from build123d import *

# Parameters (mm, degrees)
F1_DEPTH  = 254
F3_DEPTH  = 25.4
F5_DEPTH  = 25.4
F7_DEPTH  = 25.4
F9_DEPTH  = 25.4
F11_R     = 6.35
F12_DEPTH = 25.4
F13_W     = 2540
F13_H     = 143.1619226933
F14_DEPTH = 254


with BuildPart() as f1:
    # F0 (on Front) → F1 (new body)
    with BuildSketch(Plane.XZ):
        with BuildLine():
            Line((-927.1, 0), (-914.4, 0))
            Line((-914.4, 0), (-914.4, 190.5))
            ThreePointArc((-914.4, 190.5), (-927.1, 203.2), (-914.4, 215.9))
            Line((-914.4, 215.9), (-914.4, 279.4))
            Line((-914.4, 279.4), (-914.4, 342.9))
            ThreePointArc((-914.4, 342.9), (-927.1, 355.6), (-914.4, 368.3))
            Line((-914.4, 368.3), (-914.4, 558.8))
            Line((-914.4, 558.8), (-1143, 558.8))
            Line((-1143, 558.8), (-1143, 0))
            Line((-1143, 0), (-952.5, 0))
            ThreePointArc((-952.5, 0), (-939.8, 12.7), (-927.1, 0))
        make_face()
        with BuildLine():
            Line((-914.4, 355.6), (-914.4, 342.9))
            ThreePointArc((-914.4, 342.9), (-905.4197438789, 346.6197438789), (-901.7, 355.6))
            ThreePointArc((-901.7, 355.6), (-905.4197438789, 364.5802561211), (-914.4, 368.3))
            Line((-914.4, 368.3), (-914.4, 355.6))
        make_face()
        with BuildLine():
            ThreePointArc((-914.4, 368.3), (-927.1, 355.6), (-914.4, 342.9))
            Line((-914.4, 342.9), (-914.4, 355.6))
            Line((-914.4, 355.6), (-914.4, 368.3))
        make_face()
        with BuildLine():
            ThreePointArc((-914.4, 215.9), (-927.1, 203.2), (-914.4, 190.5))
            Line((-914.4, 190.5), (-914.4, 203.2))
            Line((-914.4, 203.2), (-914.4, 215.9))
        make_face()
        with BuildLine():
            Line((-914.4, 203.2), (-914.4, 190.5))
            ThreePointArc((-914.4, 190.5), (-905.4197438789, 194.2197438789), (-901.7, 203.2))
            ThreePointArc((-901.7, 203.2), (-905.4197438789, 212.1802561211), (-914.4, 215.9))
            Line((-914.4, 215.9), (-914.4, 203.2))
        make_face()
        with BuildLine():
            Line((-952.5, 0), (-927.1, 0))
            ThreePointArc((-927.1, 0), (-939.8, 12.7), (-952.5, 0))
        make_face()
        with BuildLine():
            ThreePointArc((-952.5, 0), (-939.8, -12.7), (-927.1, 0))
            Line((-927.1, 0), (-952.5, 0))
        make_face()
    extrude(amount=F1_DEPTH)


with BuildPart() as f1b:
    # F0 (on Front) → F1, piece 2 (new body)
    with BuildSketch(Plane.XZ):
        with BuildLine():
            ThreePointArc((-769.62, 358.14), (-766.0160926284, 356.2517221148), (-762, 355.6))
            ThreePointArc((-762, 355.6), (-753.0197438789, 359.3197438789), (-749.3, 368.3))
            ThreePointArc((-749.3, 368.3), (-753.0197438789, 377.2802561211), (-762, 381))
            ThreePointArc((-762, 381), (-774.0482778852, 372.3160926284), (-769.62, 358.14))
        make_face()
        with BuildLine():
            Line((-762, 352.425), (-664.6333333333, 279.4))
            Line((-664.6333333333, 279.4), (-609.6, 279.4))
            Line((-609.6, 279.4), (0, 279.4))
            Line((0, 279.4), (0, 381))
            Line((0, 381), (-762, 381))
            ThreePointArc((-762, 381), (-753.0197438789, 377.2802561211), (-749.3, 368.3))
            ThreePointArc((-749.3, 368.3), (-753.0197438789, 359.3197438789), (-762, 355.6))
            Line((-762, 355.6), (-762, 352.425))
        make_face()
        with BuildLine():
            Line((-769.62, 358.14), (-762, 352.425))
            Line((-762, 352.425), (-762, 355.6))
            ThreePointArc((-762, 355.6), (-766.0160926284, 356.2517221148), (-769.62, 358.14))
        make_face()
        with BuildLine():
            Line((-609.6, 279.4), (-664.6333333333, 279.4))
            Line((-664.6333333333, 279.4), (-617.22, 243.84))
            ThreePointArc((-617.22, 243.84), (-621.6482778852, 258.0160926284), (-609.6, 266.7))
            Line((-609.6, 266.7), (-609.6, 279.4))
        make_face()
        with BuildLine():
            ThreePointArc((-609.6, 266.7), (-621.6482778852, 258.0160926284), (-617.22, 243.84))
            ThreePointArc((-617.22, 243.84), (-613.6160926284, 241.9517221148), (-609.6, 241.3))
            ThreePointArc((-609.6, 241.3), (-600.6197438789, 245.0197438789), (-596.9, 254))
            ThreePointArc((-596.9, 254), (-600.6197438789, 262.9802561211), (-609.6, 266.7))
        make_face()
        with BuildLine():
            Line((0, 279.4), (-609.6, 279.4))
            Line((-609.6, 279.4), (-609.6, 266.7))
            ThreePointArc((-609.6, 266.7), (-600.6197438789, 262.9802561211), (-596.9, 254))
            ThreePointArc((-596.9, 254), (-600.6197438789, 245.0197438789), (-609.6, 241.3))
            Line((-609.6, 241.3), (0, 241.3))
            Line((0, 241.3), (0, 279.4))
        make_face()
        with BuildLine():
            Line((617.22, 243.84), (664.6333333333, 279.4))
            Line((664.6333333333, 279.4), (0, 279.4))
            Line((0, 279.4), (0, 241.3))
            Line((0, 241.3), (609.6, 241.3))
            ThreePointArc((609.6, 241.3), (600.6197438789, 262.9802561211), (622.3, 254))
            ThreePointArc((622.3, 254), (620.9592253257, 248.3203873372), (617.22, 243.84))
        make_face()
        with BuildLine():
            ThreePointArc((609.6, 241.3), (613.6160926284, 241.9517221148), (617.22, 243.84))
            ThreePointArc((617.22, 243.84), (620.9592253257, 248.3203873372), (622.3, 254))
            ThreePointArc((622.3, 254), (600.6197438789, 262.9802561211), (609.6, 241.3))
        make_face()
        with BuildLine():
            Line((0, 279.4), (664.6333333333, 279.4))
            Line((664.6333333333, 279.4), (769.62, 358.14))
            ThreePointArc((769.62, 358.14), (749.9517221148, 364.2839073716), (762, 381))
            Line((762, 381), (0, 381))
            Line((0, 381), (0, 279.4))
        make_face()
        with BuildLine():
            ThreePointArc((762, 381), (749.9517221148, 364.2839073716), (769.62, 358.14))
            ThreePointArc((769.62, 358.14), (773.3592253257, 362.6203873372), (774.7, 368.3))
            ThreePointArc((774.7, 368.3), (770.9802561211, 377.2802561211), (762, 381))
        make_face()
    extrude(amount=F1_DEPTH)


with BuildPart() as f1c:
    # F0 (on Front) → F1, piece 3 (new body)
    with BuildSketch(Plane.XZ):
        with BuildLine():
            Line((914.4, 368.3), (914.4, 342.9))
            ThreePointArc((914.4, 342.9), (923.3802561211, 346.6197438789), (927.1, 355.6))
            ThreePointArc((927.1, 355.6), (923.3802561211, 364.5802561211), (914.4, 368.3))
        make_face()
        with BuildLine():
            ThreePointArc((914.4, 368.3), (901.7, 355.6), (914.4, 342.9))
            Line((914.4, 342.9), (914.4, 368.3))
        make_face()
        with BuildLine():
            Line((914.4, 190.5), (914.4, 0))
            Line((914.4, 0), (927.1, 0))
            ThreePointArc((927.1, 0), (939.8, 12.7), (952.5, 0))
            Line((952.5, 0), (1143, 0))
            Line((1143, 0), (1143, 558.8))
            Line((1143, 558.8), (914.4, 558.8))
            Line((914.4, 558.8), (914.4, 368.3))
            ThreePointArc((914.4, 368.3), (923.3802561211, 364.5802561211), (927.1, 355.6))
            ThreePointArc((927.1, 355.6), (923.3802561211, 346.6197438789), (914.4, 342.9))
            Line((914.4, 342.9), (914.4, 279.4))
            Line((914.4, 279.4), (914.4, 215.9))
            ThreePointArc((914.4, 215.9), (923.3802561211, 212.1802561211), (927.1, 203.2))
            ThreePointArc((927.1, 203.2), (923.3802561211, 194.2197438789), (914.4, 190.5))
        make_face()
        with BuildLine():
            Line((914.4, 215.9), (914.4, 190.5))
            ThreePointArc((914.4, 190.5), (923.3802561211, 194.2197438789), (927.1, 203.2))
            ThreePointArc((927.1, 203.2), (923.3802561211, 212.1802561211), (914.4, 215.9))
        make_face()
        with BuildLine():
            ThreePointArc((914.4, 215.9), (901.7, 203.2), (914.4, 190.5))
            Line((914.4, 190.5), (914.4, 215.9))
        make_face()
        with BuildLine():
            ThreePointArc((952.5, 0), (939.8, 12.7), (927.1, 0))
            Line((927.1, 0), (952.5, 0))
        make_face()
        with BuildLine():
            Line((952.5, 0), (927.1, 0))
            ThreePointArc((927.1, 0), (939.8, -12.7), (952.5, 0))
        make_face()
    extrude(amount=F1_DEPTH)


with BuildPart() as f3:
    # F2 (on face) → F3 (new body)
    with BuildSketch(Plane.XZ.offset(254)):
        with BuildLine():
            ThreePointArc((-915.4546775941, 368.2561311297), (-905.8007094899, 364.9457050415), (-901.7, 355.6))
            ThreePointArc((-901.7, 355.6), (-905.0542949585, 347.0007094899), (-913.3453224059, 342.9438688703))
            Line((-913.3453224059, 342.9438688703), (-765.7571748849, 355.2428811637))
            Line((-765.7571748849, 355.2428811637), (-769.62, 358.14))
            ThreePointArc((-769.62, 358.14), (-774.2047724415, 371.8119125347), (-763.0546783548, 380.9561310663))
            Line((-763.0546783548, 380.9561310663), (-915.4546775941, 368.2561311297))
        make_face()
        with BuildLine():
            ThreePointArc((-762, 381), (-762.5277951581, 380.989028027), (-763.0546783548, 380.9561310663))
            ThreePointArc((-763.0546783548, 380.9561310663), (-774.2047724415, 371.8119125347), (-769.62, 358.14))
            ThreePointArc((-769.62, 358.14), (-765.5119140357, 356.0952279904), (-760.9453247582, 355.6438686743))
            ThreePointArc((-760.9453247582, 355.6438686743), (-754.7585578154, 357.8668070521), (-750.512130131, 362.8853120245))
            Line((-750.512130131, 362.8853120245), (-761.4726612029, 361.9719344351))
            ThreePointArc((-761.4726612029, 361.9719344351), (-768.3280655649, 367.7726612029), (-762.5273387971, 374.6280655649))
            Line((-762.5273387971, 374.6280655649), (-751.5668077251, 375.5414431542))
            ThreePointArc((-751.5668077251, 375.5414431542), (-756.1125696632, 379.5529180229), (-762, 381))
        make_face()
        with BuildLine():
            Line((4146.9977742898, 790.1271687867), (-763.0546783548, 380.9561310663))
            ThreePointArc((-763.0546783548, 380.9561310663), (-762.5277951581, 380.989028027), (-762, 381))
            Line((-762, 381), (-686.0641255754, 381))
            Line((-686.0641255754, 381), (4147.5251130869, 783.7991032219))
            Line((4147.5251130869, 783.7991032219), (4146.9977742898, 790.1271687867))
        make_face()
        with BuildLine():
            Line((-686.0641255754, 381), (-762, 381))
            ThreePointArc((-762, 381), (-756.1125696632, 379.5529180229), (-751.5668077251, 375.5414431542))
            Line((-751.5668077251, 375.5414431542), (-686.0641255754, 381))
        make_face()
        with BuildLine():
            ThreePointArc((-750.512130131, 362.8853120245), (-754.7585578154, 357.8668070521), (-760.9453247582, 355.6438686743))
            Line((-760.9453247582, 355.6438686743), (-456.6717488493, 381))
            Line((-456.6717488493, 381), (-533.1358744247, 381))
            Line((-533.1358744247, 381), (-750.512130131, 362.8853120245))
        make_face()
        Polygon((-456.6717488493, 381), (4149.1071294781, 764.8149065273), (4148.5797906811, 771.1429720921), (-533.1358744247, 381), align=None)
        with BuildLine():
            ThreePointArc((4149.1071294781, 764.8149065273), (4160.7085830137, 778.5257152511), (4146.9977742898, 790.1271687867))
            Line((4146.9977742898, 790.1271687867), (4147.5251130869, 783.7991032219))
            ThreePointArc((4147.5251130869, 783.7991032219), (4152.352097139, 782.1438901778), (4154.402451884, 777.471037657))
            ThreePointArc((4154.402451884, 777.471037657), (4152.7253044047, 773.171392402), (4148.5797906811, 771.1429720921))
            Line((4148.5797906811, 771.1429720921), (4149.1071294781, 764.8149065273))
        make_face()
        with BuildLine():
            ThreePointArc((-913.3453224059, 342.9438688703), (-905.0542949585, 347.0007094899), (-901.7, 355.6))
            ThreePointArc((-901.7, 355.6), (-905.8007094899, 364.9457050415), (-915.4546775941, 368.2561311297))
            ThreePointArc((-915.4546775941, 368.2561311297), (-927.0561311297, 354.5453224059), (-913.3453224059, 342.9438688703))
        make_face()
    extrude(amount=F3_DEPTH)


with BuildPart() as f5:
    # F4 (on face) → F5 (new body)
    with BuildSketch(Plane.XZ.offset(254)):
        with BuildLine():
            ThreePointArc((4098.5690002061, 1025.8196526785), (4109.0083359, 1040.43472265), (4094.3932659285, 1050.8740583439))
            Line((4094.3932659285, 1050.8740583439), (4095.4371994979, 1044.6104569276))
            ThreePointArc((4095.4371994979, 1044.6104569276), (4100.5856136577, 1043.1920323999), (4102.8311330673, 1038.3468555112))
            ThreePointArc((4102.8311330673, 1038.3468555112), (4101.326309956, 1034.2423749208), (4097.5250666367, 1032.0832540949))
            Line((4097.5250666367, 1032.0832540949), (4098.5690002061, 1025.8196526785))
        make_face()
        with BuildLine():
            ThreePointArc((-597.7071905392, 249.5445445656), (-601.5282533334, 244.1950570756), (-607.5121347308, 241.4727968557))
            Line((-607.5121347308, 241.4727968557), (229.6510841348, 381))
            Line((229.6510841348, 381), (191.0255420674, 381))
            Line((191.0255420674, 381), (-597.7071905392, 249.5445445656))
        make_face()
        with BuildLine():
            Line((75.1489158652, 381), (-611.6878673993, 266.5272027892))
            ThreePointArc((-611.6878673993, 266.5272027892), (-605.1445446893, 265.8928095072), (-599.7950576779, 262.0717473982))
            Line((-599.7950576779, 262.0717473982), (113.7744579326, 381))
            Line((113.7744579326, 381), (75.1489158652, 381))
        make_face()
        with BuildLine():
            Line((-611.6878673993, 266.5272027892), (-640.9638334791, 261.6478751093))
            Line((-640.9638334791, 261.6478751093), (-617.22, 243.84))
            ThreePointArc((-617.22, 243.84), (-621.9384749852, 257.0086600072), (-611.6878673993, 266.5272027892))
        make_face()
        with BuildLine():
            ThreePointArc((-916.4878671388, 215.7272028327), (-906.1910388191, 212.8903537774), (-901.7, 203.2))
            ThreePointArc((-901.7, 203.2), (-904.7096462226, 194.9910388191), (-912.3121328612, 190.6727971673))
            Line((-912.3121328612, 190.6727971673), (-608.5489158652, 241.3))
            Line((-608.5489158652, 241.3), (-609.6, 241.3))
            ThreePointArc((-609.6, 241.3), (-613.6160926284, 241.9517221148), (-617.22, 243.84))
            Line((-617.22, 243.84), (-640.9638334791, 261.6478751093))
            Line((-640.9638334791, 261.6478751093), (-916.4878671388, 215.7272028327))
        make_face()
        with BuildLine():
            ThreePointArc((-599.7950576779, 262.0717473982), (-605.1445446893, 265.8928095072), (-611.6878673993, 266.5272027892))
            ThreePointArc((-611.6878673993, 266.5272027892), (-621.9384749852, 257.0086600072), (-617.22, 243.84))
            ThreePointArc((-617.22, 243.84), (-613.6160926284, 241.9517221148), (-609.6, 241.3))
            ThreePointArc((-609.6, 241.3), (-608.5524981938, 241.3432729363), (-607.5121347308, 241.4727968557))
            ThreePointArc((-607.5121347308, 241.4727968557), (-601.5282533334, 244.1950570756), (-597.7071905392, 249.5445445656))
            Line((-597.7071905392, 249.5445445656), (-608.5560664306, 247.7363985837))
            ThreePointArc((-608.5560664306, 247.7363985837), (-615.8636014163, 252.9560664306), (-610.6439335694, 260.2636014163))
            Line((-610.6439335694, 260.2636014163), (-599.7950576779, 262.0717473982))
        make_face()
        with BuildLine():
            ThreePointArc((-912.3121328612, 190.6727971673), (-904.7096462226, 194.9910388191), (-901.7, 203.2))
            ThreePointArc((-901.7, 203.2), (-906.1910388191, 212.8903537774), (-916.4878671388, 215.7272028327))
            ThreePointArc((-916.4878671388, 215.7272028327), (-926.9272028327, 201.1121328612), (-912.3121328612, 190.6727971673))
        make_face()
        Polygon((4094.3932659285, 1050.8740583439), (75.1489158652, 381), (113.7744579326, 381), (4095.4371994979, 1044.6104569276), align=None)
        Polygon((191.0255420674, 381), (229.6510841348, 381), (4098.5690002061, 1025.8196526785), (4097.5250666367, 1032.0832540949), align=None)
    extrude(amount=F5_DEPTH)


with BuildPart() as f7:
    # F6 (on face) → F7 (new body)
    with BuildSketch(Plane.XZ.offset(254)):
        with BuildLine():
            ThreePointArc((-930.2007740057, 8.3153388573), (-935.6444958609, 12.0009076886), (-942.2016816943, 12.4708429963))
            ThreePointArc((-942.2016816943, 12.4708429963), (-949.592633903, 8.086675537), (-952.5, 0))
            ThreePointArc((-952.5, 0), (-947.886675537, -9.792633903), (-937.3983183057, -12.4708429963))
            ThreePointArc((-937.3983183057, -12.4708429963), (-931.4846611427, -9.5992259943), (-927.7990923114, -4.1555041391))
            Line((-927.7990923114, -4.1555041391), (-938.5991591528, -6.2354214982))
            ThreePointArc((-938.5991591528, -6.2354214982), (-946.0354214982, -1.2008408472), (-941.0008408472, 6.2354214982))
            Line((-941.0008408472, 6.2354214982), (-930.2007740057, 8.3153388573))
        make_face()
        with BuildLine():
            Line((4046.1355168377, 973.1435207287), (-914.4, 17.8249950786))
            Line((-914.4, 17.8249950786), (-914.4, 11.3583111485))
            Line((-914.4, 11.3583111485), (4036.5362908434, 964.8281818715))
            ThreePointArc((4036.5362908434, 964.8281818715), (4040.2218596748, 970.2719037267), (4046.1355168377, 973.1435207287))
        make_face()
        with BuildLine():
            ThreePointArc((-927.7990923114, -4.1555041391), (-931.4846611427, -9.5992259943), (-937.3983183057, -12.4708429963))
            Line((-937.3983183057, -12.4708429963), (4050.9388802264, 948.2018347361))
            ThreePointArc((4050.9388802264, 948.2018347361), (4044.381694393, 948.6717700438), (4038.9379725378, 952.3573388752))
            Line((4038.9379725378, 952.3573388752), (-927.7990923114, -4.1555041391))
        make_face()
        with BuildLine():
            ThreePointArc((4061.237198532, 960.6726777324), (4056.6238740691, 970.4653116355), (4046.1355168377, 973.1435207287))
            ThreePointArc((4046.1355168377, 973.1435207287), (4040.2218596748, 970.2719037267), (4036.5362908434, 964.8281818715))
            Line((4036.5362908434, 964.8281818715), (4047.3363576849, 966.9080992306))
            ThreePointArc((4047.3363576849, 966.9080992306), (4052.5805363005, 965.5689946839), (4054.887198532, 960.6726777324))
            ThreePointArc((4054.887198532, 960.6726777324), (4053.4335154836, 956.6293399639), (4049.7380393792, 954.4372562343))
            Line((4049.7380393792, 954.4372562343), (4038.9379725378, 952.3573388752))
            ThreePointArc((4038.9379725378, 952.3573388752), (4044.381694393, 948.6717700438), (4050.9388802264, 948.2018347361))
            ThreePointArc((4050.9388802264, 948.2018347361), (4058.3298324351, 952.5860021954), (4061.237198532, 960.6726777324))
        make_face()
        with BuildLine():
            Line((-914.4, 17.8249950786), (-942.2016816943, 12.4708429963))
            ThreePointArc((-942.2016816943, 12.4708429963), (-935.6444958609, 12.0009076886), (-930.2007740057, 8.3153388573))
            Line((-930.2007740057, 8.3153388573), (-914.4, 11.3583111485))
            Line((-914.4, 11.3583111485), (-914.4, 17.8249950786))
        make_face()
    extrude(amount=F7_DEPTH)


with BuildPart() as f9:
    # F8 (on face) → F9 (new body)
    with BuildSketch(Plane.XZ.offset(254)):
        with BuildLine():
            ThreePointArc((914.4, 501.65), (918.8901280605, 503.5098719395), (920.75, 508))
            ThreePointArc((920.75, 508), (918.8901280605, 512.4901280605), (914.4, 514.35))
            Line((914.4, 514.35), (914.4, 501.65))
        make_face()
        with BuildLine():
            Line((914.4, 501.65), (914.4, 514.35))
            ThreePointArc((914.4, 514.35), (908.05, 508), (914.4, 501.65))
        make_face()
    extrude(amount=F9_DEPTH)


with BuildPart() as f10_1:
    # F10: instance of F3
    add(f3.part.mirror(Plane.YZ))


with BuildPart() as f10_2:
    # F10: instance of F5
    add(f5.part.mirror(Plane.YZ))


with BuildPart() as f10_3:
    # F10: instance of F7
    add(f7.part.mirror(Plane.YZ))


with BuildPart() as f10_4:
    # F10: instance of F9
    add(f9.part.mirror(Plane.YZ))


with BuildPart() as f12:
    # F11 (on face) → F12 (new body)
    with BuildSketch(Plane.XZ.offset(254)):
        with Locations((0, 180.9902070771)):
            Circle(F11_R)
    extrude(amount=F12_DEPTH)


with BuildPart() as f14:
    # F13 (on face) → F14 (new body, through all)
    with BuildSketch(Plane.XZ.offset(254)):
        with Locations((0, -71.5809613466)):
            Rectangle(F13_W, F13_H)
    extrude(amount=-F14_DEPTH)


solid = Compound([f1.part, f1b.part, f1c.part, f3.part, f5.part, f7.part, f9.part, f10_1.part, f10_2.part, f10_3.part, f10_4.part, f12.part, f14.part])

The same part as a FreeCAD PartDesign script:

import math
import FreeCAD as App
import Part
import Sketcher

V = App.Vector
Q = App.Units.Quantity


def add_polygon(sketch, points):
    """Adds a closed chain of lines whose ends are joined by coincident constraints."""
    first, n = sketch.GeometryCount, len(points)
    for a, b in zip(points, points[1:] + points[:1]):
        sketch.addGeometry(Part.LineSegment(App.Vector(*a, 0), App.Vector(*b, 0)), False)
    for i in range(n):
        sketch.addConstraint(Sketcher.Constraint("Coincident", first + i, 2, first + (i + 1) % n, 1))

doc = App.newDocument("Part")
body = doc.addObject("PartDesign::Body", "Body")

sketch1 = body.newObject("Sketcher::SketchObject", "Sketch")
sketch1.AttachmentSupport = (doc.getObject("XZ_Plane"), [""])
sketch1.MapMode = "FlatFace"
sketch1.addGeometry(Part.LineSegment(V(-914.4, 0, 0), V(-914.4, 190.5, 0)), False)
sketch1.addGeometry(Part.ArcOfCircle(Part.Circle(V(-914.4, 203.2, 0), V(0, 0, 1), 12.7), math.radians(-90), math.radians(0)), False)
sketch1.addGeometry(Part.ArcOfCircle(Part.Circle(V(-914.4, 203.2, 0), V(0, 0, 1), 12.7), math.radians(0), math.radians(90)), False)
sketch1.addGeometry(Part.LineSegment(V(-914.4, 215.9, 0), V(-914.4, 342.9, 0)), False)
sketch1.addGeometry(Part.ArcOfCircle(Part.Circle(V(-914.4, 355.6, 0), V(0, 0, 1), 12.7), math.radians(-90), math.radians(0)), False)
sketch1.addGeometry(Part.ArcOfCircle(Part.Circle(V(-914.4, 355.6, 0), V(0, 0, 1), 12.7), math.radians(0), math.radians(90)), False)
sketch1.addGeometry(Part.LineSegment(V(-914.4, 368.3, 0), V(-914.4, 558.8, 0)), False)
sketch1.addGeometry(Part.LineSegment(V(-914.4, 558.8, 0), V(-1143, 558.8, 0)), False)
sketch1.addGeometry(Part.LineSegment(V(-1143, 558.8, 0), V(-1143, 0, 0)), False)
sketch1.addGeometry(Part.LineSegment(V(-1143, 0, 0), V(-952.5, 0, 0)), False)
sketch1.addGeometry(Part.ArcOfCircle(Part.Circle(V(-939.8, 0, 0), V(0, 0, 1), 12.7), math.radians(180), math.radians(360)), False)
sketch1.addGeometry(Part.LineSegment(V(-927.1, 0, 0), V(-914.4, 0, 0)), False)
sketch1.addConstraint(Sketcher.Constraint("Coincident", 0, 2, 1, 1))
sketch1.addConstraint(Sketcher.Constraint("Tangent", 1, 2, 2, 1))
sketch1.addConstraint(Sketcher.Constraint("Coincident", 2, 2, 3, 1))
sketch1.addConstraint(Sketcher.Constraint("Coincident", 3, 2, 4, 1))
sketch1.addConstraint(Sketcher.Constraint("Tangent", 4, 2, 5, 1))
sketch1.addConstraint(Sketcher.Constraint("Coincident", 5, 2, 6, 1))
sketch1.addConstraint(Sketcher.Constraint("Coincident", 6, 2, 7, 1))
sketch1.addConstraint(Sketcher.Constraint("Coincident", 7, 2, 8, 1))
sketch1.addConstraint(Sketcher.Constraint("Coincident", 8, 2, 9, 1))
sketch1.addConstraint(Sketcher.Constraint("Coincident", 9, 2, 10, 1))
sketch1.addConstraint(Sketcher.Constraint("Coincident", 10, 2, 11, 1))
sketch1.addConstraint(Sketcher.Constraint("Coincident", 11, 2, 0, 1))
sketch1.addConstraint(Sketcher.Constraint("Vertical", 0))
sketch1.addConstraint(Sketcher.Constraint("Vertical", 3))
sketch1.addConstraint(Sketcher.Constraint("Vertical", 6))
sketch1.addConstraint(Sketcher.Constraint("Horizontal", 7))
sketch1.addConstraint(Sketcher.Constraint("Vertical", 8))
sketch1.addConstraint(Sketcher.Constraint("Horizontal", 9))
sketch1.addConstraint(Sketcher.Constraint("Horizontal", 11))
sketch1.addConstraint(Sketcher.Constraint("Equal", 1, 2))
sketch1.addConstraint(Sketcher.Constraint("Equal", 2, 4))
sketch1.addConstraint(Sketcher.Constraint("Equal", 4, 5))
sketch1.addConstraint(Sketcher.Constraint("Equal", 5, 10))
sketch1.addConstraint(Sketcher.Constraint("PointOnObject", 10, 3, -1))
sketch1.addConstraint(Sketcher.Constraint("PointOnObject", 8, 2, -1))
sketch1.addConstraint(Sketcher.Constraint("PointOnObject", 10, 2, -1))
sketch1.addConstraint(Sketcher.Constraint("Horizontal", 2, 3, 1, 2))
sketch1.addConstraint(Sketcher.Constraint("Horizontal", 5, 3, 4, 2))
sketch1.addConstraint(Sketcher.Constraint("Vertical", 2, 3, 4, 3))
sketch1.addConstraint(Sketcher.Constraint("Vertical", 5, 3, 0, 2))
sketch1.addConstraint(Sketcher.Constraint("Vertical", 0, 2, 2, 2))
sketch1.addConstraint(Sketcher.Constraint("Vertical", 3, 2, 5, 2))
sketch1.addConstraint(Sketcher.Constraint("Equal", 9, 0))
sketch1.addConstraint(Sketcher.Constraint("Equal", 0, 6))
sketch1.addConstraint(Sketcher.Constraint("Radius", 1, Q("0.5 in")))
sketch1.addConstraint(Sketcher.Constraint("DistanceX", 7, 2, 7, 1, Q("9 in")))
sketch1.addConstraint(Sketcher.Constraint("DistanceY", 3, 1, 3, 2, Q("5 in")))
sketch1.addConstraint(Sketcher.Constraint("DistanceY", 8, 2, 8, 1, Q("22 in")))
sketch1.addConstraint(Sketcher.Constraint("DistanceX", 1, 3, -1, 1, Q("36 in")))
pad1 = body.newObject("PartDesign::Pad", "Pad")
pad1.Profile = sketch1
pad1.Length = Q("10 in")
body2 = doc.addObject("PartDesign::Body", "Body001")

sketch2 = body2.newObject("Sketcher::SketchObject", "Sketch001")
sketch2.AttachmentSupport = (doc.getObject("XZ_Plane001"), [""])
sketch2.MapMode = "FlatFace"
sketch2.addGeometry(Part.ArcOfCircle(Part.Circle(V(-762, 368.3, 0), V(0, 0, 1), 12.7), math.radians(90), math.radians(233.130102)), False)
sketch2.addGeometry(Part.LineSegment(V(-769.62, 358.14, 0), V(-617.22, 243.84, 0)), False)
sketch2.addGeometry(Part.ArcOfCircle(Part.Circle(V(-609.6, 254, 0), V(0, 0, 1), 12.7), math.radians(-126.869898), math.radians(-90)), False)
sketch2.addGeometry(Part.LineSegment(V(-609.6, 241.3, 0), V(609.6, 241.3, 0)), False)
sketch2.addGeometry(Part.ArcOfCircle(Part.Circle(V(609.6, 254, 0), V(0, 0, 1), 12.7), math.radians(-90), math.radians(-53.130102)), False)
sketch2.addGeometry(Part.LineSegment(V(617.22, 243.84, 0), V(769.62, 358.14, 0)), False)
sketch2.addGeometry(Part.ArcOfCircle(Part.Circle(V(762, 368.3, 0), V(0, 0, 1), 12.7), math.radians(-53.130102), math.radians(0)), False)
sketch2.addGeometry(Part.ArcOfCircle(Part.Circle(V(762, 368.3, 0), V(0, 0, 1), 12.7), math.radians(0), math.radians(90)), False)
sketch2.addGeometry(Part.LineSegment(V(762, 381, 0), V(-762, 381, 0)), False)
sketch2.addConstraint(Sketcher.Constraint("Tangent", 0, 2, 1, 1))
sketch2.addConstraint(Sketcher.Constraint("Tangent", 1, 2, 2, 1))
sketch2.addConstraint(Sketcher.Constraint("Tangent", 2, 2, 3, 1))
sketch2.addConstraint(Sketcher.Constraint("Tangent", 3, 2, 4, 1))
sketch2.addConstraint(Sketcher.Constraint("Tangent", 4, 2, 5, 1))
sketch2.addConstraint(Sketcher.Constraint("Tangent", 5, 2, 6, 1))
sketch2.addConstraint(Sketcher.Constraint("Tangent", 6, 2, 7, 1))
sketch2.addConstraint(Sketcher.Constraint("Tangent", 7, 2, 8, 1))
sketch2.addConstraint(Sketcher.Constraint("Tangent", 8, 2, 0, 1))
sketch2.addConstraint(Sketcher.Constraint("Horizontal", 3))
sketch2.addConstraint(Sketcher.Constraint("Horizontal", 8))
sketch2.addConstraint(Sketcher.Constraint("Equal", 0, 2))
sketch2.addConstraint(Sketcher.Constraint("Equal", 2, 4))
sketch2.addConstraint(Sketcher.Constraint("Equal", 4, 6))
sketch2.addConstraint(Sketcher.Constraint("Equal", 6, 7))
sketch2.addConstraint(Sketcher.Constraint("Symmetric", 1, 2, 4, 2, -2))
sketch2.addConstraint(Sketcher.Constraint("Horizontal", 7, 3, 6, 2))
sketch2.addConstraint(Sketcher.Constraint("Radius", 0, Q("0.5 in")))
sketch2.addConstraint(Sketcher.Constraint("DistanceX", 3, 1, 3, 2, Q("48 in")))
sketch2.addConstraint(Sketcher.Constraint("DistanceX", 8, 2, 8, 1, Q("60 in")))
sketch2.addConstraint(Sketcher.Constraint("DistanceY", -1, 1, 2, 3, Q("10 in")))
sketch2.addConstraint(Sketcher.Constraint("DistanceY", -1, 1, 7, 2, Q("15 in")))
pad2 = body2.newObject("PartDesign::Pad", "Pad001")
pad2.Profile = sketch2
pad2.Length = Q("10 in")
body3 = doc.addObject("PartDesign::Body", "Body002")

sketch3 = body3.newObject("Sketcher::SketchObject", "Sketch002")
sketch3.AttachmentSupport = (doc.getObject("XZ_Plane002"), [""])
sketch3.MapMode = "FlatFace"
sketch3.addGeometry(Part.ArcOfCircle(Part.Circle(V(914.4, 355.6, 0), V(0, 0, 1), 12.7), math.radians(90), math.radians(270)), False)
sketch3.addGeometry(Part.LineSegment(V(914.4, 342.9, 0), V(914.4, 215.9, 0)), False)
sketch3.addGeometry(Part.ArcOfCircle(Part.Circle(V(914.4, 203.2, 0), V(0, 0, 1), 12.7), math.radians(90), math.radians(270)), False)
sketch3.addGeometry(Part.LineSegment(V(914.4, 190.5, 0), V(914.4, 0, 0)), False)
sketch3.addGeometry(Part.LineSegment(V(914.4, 0, 0), V(927.1, 0, 0)), False)
sketch3.addGeometry(Part.ArcOfCircle(Part.Circle(V(939.8, 0, 0), V(0, 0, 1), 12.7), math.radians(180), math.radians(360)), False)
sketch3.addGeometry(Part.LineSegment(V(952.5, 0, 0), V(1143, 0, 0)), False)
sketch3.addGeometry(Part.LineSegment(V(1143, 0, 0), V(1143, 558.8, 0)), False)
sketch3.addGeometry(Part.LineSegment(V(1143, 558.8, 0), V(914.4, 558.8, 0)), False)
sketch3.addGeometry(Part.LineSegment(V(914.4, 558.8, 0), V(914.4, 368.3, 0)), False)
sketch3.addConstraint(Sketcher.Constraint("Coincident", 0, 2, 1, 1))
sketch3.addConstraint(Sketcher.Constraint("Coincident", 1, 2, 2, 1))
sketch3.addConstraint(Sketcher.Constraint("Coincident", 2, 2, 3, 1))
sketch3.addConstraint(Sketcher.Constraint("Coincident", 3, 2, 4, 1))
sketch3.addConstraint(Sketcher.Constraint("Coincident", 4, 2, 5, 1))
sketch3.addConstraint(Sketcher.Constraint("Coincident", 5, 2, 6, 1))
sketch3.addConstraint(Sketcher.Constraint("Coincident", 6, 2, 7, 1))
sketch3.addConstraint(Sketcher.Constraint("Coincident", 7, 2, 8, 1))
sketch3.addConstraint(Sketcher.Constraint("Coincident", 8, 2, 9, 1))
sketch3.addConstraint(Sketcher.Constraint("Coincident", 9, 2, 0, 1))
sketch3.addConstraint(Sketcher.Constraint("Vertical", 1))
sketch3.addConstraint(Sketcher.Constraint("Vertical", 3))
sketch3.addConstraint(Sketcher.Constraint("Horizontal", 4))
sketch3.addConstraint(Sketcher.Constraint("Horizontal", 6))
sketch3.addConstraint(Sketcher.Constraint("Vertical", 7))
sketch3.addConstraint(Sketcher.Constraint("Horizontal", 8))
sketch3.addConstraint(Sketcher.Constraint("Vertical", 9))
sketch3.addConstraint(Sketcher.Constraint("Equal", 0, 2))
sketch3.addConstraint(Sketcher.Constraint("Equal", 2, 5))
sketch3.addConstraint(Sketcher.Constraint("PointOnObject", 5, 3, -1))
sketch3.addConstraint(Sketcher.Constraint("PointOnObject", 3, 2, -1))
sketch3.addConstraint(Sketcher.Constraint("PointOnObject", 5, 2, -1))
sketch3.addConstraint(Sketcher.Constraint("Vertical", 0, 3, 2, 3))
sketch3.addConstraint(Sketcher.Constraint("Vertical", 2, 3, 0, 2))
sketch3.addConstraint(Sketcher.Constraint("Vertical", 1, 2, 2, 2))
sketch3.addConstraint(Sketcher.Constraint("Vertical", 3, 2, 8, 2))
sketch3.addConstraint(Sketcher.Constraint("Equal", 6, 3))
sketch3.addConstraint(Sketcher.Constraint("Equal", 3, 9))
sketch3.addConstraint(Sketcher.Constraint("Radius", 0, Q("0.5 in")))
sketch3.addConstraint(Sketcher.Constraint("DistanceX", 8, 2, 8, 1, Q("9 in")))
sketch3.addConstraint(Sketcher.Constraint("DistanceY", 1, 2, 1, 1, Q("5 in")))
sketch3.addConstraint(Sketcher.Constraint("DistanceY", 7, 1, 7, 2, Q("22 in")))
sketch3.addConstraint(Sketcher.Constraint("DistanceX", -1, 1, 0, 3, Q("36 in")))
pad3 = body3.newObject("PartDesign::Pad", "Pad002")
pad3.Profile = sketch3
pad3.Length = Q("10 in")
body4 = doc.addObject("PartDesign::Body", "Body003")

sketch4 = body4.newObject("Sketcher::SketchObject", "Sketch003")
sketch4.AttachmentSupport = (doc.getObject("XZ_Plane003"), [""])
sketch4.MapMode = "FlatFace"
sketch4.AttachmentOffset = App.Placement(V(0, 0, 10 * 25.4), App.Rotation())
sketch4.addGeometry(Part.LineSegment(V(-913.345322, 342.943869, 0), V(-765.757175, 355.242881, 0)), False)
sketch4.addGeometry(Part.LineSegment(V(-765.757175, 355.242881, 0), V(-769.62, 358.14, 0)), False)
sketch4.addGeometry(Part.ArcOfCircle(Part.Circle(V(-762, 368.3, 0), V(0, 0, 1), 12.7), math.radians(-126.869898), math.radians(-85.236369)), False)
sketch4.addGeometry(Part.LineSegment(V(-760.945325, 355.643869, 0), V(4149.107129, 764.814907, 0)), False)
sketch4.addGeometry(Part.ArcOfCircle(Part.Circle(V(4148.052452, 777.471038, 0), V(0, 0, 1), 12.7), math.radians(-85.236358), math.radians(94.763642)), False)
sketch4.addGeometry(Part.LineSegment(V(4146.997774, 790.127169, 0), V(-915.454678, 368.256131, 0)), False)
sketch4.addGeometry(Part.ArcOfCircle(Part.Circle(V(-914.4, 355.6, 0), V(0, 0, 1), 12.7), math.radians(94.763642), math.radians(274.763642)), False)
sketch4.addGeometry(Part.LineSegment(V(4148.579791, 771.142972, 0), V(-750.51213, 362.885312, 0)), False)
sketch4.addGeometry(Part.LineSegment(V(-750.51213, 362.885312, 0), V(-761.472661, 361.971934, 0)), False)
sketch4.addGeometry(Part.ArcOfCircle(Part.Circle(V(-762, 368.3, 0), V(0, 0, 1), 6.35), math.radians(94.763642), math.radians(274.763642)), False)
sketch4.addGeometry(Part.LineSegment(V(-762.527339, 374.628066, 0), V(-751.566808, 375.541443, 0)), False)
sketch4.addGeometry(Part.LineSegment(V(-751.566808, 375.541443, 0), V(4147.525113, 783.799103, 0)), False)
sketch4.addGeometry(Part.ArcOfCircle(Part.Circle(V(4148.052452, 777.471038, 0), V(0, 0, 1), 6.35), math.radians(0), math.radians(94.763642)), False)
sketch4.addGeometry(Part.ArcOfCircle(Part.Circle(V(4148.052452, 777.471038, 0), V(0, 0, 1), 6.35), math.radians(-85.236358), math.radians(0)), False)
sketch4.addConstraint(Sketcher.Constraint("Coincident", 0, 2, 1, 1))
sketch4.addConstraint(Sketcher.Constraint("Tangent", 1, 2, 2, 1))
sketch4.addConstraint(Sketcher.Constraint("Tangent", 2, 2, 3, 1))
sketch4.addConstraint(Sketcher.Constraint("Tangent", 3, 2, 4, 1))
sketch4.addConstraint(Sketcher.Constraint("Tangent", 4, 2, 5, 1))
sketch4.addConstraint(Sketcher.Constraint("Tangent", 5, 2, 6, 1))
sketch4.addConstraint(Sketcher.Constraint("Tangent", 6, 2, 0, 1))
sketch4.addConstraint(Sketcher.Constraint("Coincident", 7, 2, 8, 1))
sketch4.addConstraint(Sketcher.Constraint("Tangent", 8, 2, 9, 2))
sketch4.addConstraint(Sketcher.Constraint("Tangent", 9, 1, 10, 1))
sketch4.addConstraint(Sketcher.Constraint("Coincident", 10, 2, 11, 1))
sketch4.addConstraint(Sketcher.Constraint("Tangent", 11, 2, 12, 2))
sketch4.addConstraint(Sketcher.Constraint("Tangent", 12, 1, 13, 2))
sketch4.addConstraint(Sketcher.Constraint("Tangent", 13, 1, 7, 1))
sketch4.addConstraint(Sketcher.Constraint("Coincident", 9, 3, 2, 3))
sketch4.addConstraint(Sketcher.Constraint("Coincident", 12, 3, 4, 3))
sketch4.addConstraint(Sketcher.Constraint("Equal", 2, 4))
sketch4.addConstraint(Sketcher.Constraint("Equal", 4, 6))
sketch4.addConstraint(Sketcher.Constraint("Equal", 9, 12))
sketch4.addConstraint(Sketcher.Constraint("Equal", 12, 13))
sketch4.addConstraint(Sketcher.Constraint("Parallel", 0, 3))
sketch4.addConstraint(Sketcher.Constraint("Parallel", 3, 5))
sketch4.addConstraint(Sketcher.Constraint("Parallel", 5, 7))
sketch4.addConstraint(Sketcher.Constraint("Parallel", 8, 10))
sketch4.addConstraint(Sketcher.Constraint("Horizontal", 13, 3, 12, 1))
sketch4.addConstraint(Sketcher.Constraint("Equal", 8, 10))
sketch4.addConstraint(Sketcher.Constraint("Radius", 2, Q("0.5 in")))
sketch4.addConstraint(Sketcher.Constraint("Radius", 9, Q("0.25 in")))
sketch4.addConstraint(Sketcher.Constraint("Distance", 5, Q("200 in")))
sketch4.addConstraint(Sketcher.Constraint("DistanceX", 2, 3, -1, 1, Q("30 in")))
sketch4.addConstraint(Sketcher.Constraint("DistanceX", 6, 3, -1, 1, Q("36 in")))
sketch4.addConstraint(Sketcher.Constraint("DistanceY", -1, 1, 6, 3, Q("14 in")))
sketch4.addConstraint(Sketcher.Constraint("DistanceY", -1, 1, 2, 3, Q("14.5 in")))
sketch4.addConstraint(Sketcher.Constraint("DistanceX", 1, 2, -1, 1, Q("30.3 in")))
sketch4.addConstraint(Sketcher.Constraint("DistanceX", 7, 2, -1, 1, Q("750.51213 mm")))
pad4 = body4.newObject("PartDesign::Pad", "Pad003")
pad4.Profile = sketch4
pad4.Length = Q("1 in")
body5 = doc.addObject("PartDesign::Body", "Body004")

sketch5 = body5.newObject("Sketcher::SketchObject", "Sketch004")
sketch5.AttachmentSupport = (doc.getObject("XZ_Plane004"), [""])
sketch5.MapMode = "FlatFace"
sketch5.AttachmentOffset = App.Placement(V(0, 0, 10 * 25.4), App.Rotation())
sketch5.addGeometry(Part.ArcOfCircle(Part.Circle(V(4096.481133, 1038.346856, 0), V(0, 0, 1), 12.7), math.radians(-80.537678), math.radians(99.462322)), False)
sketch5.addGeometry(Part.LineSegment(V(4094.393266, 1050.874058, 0), V(-611.687867, 266.527203, 0)), False)
sketch5.addGeometry(Part.LineSegment(V(-611.687867, 266.527203, 0), V(-640.963833, 261.647875, 0)), False)
sketch5.addGeometry(Part.LineSegment(V(-640.963833, 261.647875, 0), V(-916.487867, 215.727203, 0)), False)
sketch5.addGeometry(Part.ArcOfCircle(Part.Circle(V(-914.4, 203.2, 0), V(0, 0, 1), 12.7), math.radians(99.462322), math.radians(279.462322)), False)
sketch5.addGeometry(Part.LineSegment(V(-912.312133, 190.672797, 0), V(-608.548916, 241.3, 0)), False)
sketch5.addGeometry(Part.LineSegment(V(-608.548916, 241.3, 0), V(-609.6, 241.3, 0)), False)
sketch5.addGeometry(Part.ArcOfCircle(Part.Circle(V(-609.6, 254, 0), V(0, 0, 1), 12.7), math.radians(-90), math.radians(-80.537686)), False)
sketch5.addGeometry(Part.LineSegment(V(-607.512135, 241.472797, 0), V(4098.569, 1025.819653, 0)), False)
sketch5.addGeometry(Part.ArcOfCircle(Part.Circle(V(-609.6, 254, 0), V(0, 0, 1), 6.35), math.radians(99.462322), math.radians(279.462322)), False)
sketch5.addGeometry(Part.LineSegment(V(-610.643934, 260.263601, 0), V(-599.795058, 262.071747, 0)), False)
sketch5.addGeometry(Part.LineSegment(V(-599.795058, 262.071747, 0), V(4095.437199, 1044.610457, 0)), False)
sketch5.addGeometry(Part.ArcOfCircle(Part.Circle(V(4096.481133, 1038.346856, 0), V(0, 0, 1), 6.35), math.radians(0), math.radians(99.462322)), False)
sketch5.addGeometry(Part.ArcOfCircle(Part.Circle(V(4096.481133, 1038.346856, 0), V(0, 0, 1), 6.35), math.radians(-80.537678), math.radians(0)), False)
sketch5.addGeometry(Part.LineSegment(V(4097.525067, 1032.083254, 0), V(-608.556066, 247.736399, 0)), False)
sketch5.addConstraint(Sketcher.Constraint("Tangent", 0, 2, 1, 1))
sketch5.addConstraint(Sketcher.Constraint("Coincident", 1, 2, 2, 1))
sketch5.addConstraint(Sketcher.Constraint("Coincident", 2, 2, 3, 1))
sketch5.addConstraint(Sketcher.Constraint("Tangent", 3, 2, 4, 1))
sketch5.addConstraint(Sketcher.Constraint("Tangent", 4, 2, 5, 1))
sketch5.addConstraint(Sketcher.Constraint("Coincident", 5, 2, 6, 1))
sketch5.addConstraint(Sketcher.Constraint("Tangent", 6, 2, 7, 1))
sketch5.addConstraint(Sketcher.Constraint("Tangent", 7, 2, 8, 1))
sketch5.addConstraint(Sketcher.Constraint("Tangent", 8, 2, 0, 1))
sketch5.addConstraint(Sketcher.Constraint("Tangent", 9, 1, 10, 1))
sketch5.addConstraint(Sketcher.Constraint("Coincident", 10, 2, 11, 1))
sketch5.addConstraint(Sketcher.Constraint("Tangent", 11, 2, 12, 2))
sketch5.addConstraint(Sketcher.Constraint("Tangent", 12, 1, 13, 2))
sketch5.addConstraint(Sketcher.Constraint("Tangent", 13, 1, 14, 1))
sketch5.addConstraint(Sketcher.Constraint("Tangent", 14, 2, 9, 2))
sketch5.addConstraint(Sketcher.Constraint("Horizontal", 6))
sketch5.addConstraint(Sketcher.Constraint("Coincident", 9, 3, 7, 3))
sketch5.addConstraint(Sketcher.Constraint("Coincident", 12, 3, 0, 3))
sketch5.addConstraint(Sketcher.Constraint("Equal", 0, 4))
sketch5.addConstraint(Sketcher.Constraint("Equal", 4, 7))
sketch5.addConstraint(Sketcher.Constraint("Equal", 9, 12))
sketch5.addConstraint(Sketcher.Constraint("Equal", 12, 13))
sketch5.addConstraint(Sketcher.Constraint("Parallel", 1, 2))
sketch5.addConstraint(Sketcher.Constraint("Parallel", 2, 3))
sketch5.addConstraint(Sketcher.Constraint("Parallel", 3, 5))
sketch5.addConstraint(Sketcher.Constraint("Parallel", 5, 8))
sketch5.addConstraint(Sketcher.Constraint("Parallel", 8, 10))
sketch5.addConstraint(Sketcher.Constraint("Horizontal", 13, 3, 12, 1))
sketch5.addConstraint(Sketcher.Constraint("Equal", 1, 8))
sketch5.addConstraint(Sketcher.Constraint("Radius", 0, Q("0.5 in")))
sketch5.addConstraint(Sketcher.Constraint("Radius", 9, Q("0.25 in")))
sketch5.addConstraint(Sketcher.Constraint("DistanceX", 4, 3, -1, 1, Q("36 in")))
sketch5.addConstraint(Sketcher.Constraint("DistanceY", -1, 1, 4, 3, Q("8 in")))
sketch5.addConstraint(Sketcher.Constraint("DistanceX", 7, 3, -1, 1, Q("24 in")))
sketch5.addConstraint(Sketcher.Constraint("DistanceY", -1, 1, 7, 3, Q("10 in")))
sketch5.addConstraint(Sketcher.Constraint("DistanceX", -1, 1, 8, 2, Q("4098.569 mm")))
sketch5.addConstraint(Sketcher.Constraint("DistanceX", 2, 2, 0, 2, Q("4735.357099 mm")))
sketch5.addConstraint(Sketcher.Constraint("Distance", 11, Q("4759.997141 mm")))
pad5 = body5.newObject("PartDesign::Pad", "Pad004")
pad5.Profile = sketch5
pad5.Length = Q("1 in")
body6 = doc.addObject("PartDesign::Body", "Body005")

sketch6 = body6.newObject("Sketcher::SketchObject", "Sketch005")
sketch6.AttachmentSupport = (doc.getObject("XZ_Plane005"), [""])
sketch6.MapMode = "FlatFace"
sketch6.AttachmentOffset = App.Placement(V(0, 0, 10 * 25.4), App.Rotation())
sketch6.addGeometry(Part.ArcOfCircle(Part.Circle(V(-939.8, 0, 0), V(0, 0, 1), 12.7), math.radians(100.900779), math.radians(180)), False)
sketch6.addGeometry(Part.ArcOfCircle(Part.Circle(V(-939.8, 0, 0), V(0, 0, 1), 12.7), math.radians(180), math.radians(280.900779)), False)
sketch6.addGeometry(Part.LineSegment(V(-937.398318, -12.470843, 0), V(4050.93888, 948.201835, 0)), False)
sketch6.addGeometry(Part.ArcOfCircle(Part.Circle(V(4048.537199, 960.672678, 0), V(0, 0, 1), 12.7), math.radians(-79.099221), math.radians(0)), False)
sketch6.addGeometry(Part.ArcOfCircle(Part.Circle(V(4048.537199, 960.672678, 0), V(0, 0, 1), 12.7), math.radians(0), math.radians(100.900779)), False)
sketch6.addGeometry(Part.LineSegment(V(4046.135517, 973.143521, 0), V(-942.201682, 12.470843, 0)), False)
sketch6.addGeometry(Part.ArcOfCircle(Part.Circle(V(4048.537199, 960.672678, 0), V(0, 0, 1), 6.35), math.radians(0), math.radians(100.900779)), False)
sketch6.addGeometry(Part.ArcOfCircle(Part.Circle(V(4048.537199, 960.672678, 0), V(0, 0, 1), 6.35), math.radians(-79.099221), math.radians(0)), False)
sketch6.addGeometry(Part.LineSegment(V(4049.738039, 954.437256, 0), V(-938.599159, -6.235421, 0)), False)
sketch6.addGeometry(Part.ArcOfCircle(Part.Circle(V(-939.8, 0, 0), V(0, 0, 1), 6.35), math.radians(100.900779), math.radians(280.900779)), False)
sketch6.addGeometry(Part.LineSegment(V(-941.000841, 6.235421, 0), V(4047.336358, 966.908099, 0)), False)
sketch6.addConstraint(Sketcher.Constraint("Tangent", 0, 2, 1, 1))
sketch6.addConstraint(Sketcher.Constraint("Tangent", 1, 2, 2, 1))
sketch6.addConstraint(Sketcher.Constraint("Tangent", 2, 2, 3, 1))
sketch6.addConstraint(Sketcher.Constraint("Tangent", 3, 2, 4, 1))
sketch6.addConstraint(Sketcher.Constraint("Tangent", 4, 2, 5, 1))
sketch6.addConstraint(Sketcher.Constraint("Tangent", 5, 2, 0, 1))
sketch6.addConstraint(Sketcher.Constraint("Tangent", 6, 1, 7, 2))
sketch6.addConstraint(Sketcher.Constraint("Tangent", 7, 1, 8, 1))
sketch6.addConstraint(Sketcher.Constraint("Tangent", 8, 2, 9, 2))
sketch6.addConstraint(Sketcher.Constraint("Tangent", 9, 1, 10, 1))
sketch6.addConstraint(Sketcher.Constraint("Tangent", 10, 2, 6, 2))
sketch6.addConstraint(Sketcher.Constraint("Coincident", 6, 3, 3, 3))
sketch6.addConstraint(Sketcher.Constraint("Coincident", 9, 3, 0, 3))
sketch6.addConstraint(Sketcher.Constraint("Equal", 0, 1))
sketch6.addConstraint(Sketcher.Constraint("Equal", 1, 3))
sketch6.addConstraint(Sketcher.Constraint("Equal", 3, 4))
sketch6.addConstraint(Sketcher.Constraint("Equal", 6, 7))
sketch6.addConstraint(Sketcher.Constraint("Equal", 7, 9))
sketch6.addConstraint(Sketcher.Constraint("PointOnObject", 0, 3, -1))
sketch6.addConstraint(Sketcher.Constraint("PointOnObject", 0, 2, -1))
sketch6.addConstraint(Sketcher.Constraint("Horizontal", 7, 3, 3, 2))
sketch6.addConstraint(Sketcher.Constraint("Horizontal", 3, 2, 6, 1))
sketch6.addConstraint(Sketcher.Constraint("Radius", 0, Q("0.5 in")))
sketch6.addConstraint(Sketcher.Constraint("Radius", 6, Q("0.25 in")))
sketch6.addConstraint(Sketcher.Constraint("Distance", 2, Q("200 in")))
sketch6.addConstraint(Sketcher.Constraint("DistanceX", 0, 3, -1, 1, Q("37 in")))
sketch6.addConstraint(Sketcher.Constraint("DistanceX", -1, 1, 3, 3, Q("4048.537199 mm")))
pad6 = body6.newObject("PartDesign::Pad", "Pad005")
pad6.Profile = sketch6
pad6.Length = Q("1 in")
body7 = doc.addObject("PartDesign::Body", "Body006")

sketch7 = body7.newObject("Sketcher::SketchObject", "Sketch006")
sketch7.AttachmentSupport = (doc.getObject("XZ_Plane006"), [""])
sketch7.MapMode = "FlatFace"
sketch7.AttachmentOffset = App.Placement(V(0, 0, 10 * 25.4), App.Rotation())
sketch7.addGeometry(Part.ArcOfCircle(Part.Circle(V(914.4, 508, 0), V(0, 0, 1), 6.35), math.radians(-90), math.radians(0)), False)
sketch7.addGeometry(Part.ArcOfCircle(Part.Circle(V(914.4, 508, 0), V(0, 0, 1), 6.35), math.radians(0), math.radians(90)), False)
sketch7.addGeometry(Part.ArcOfCircle(Part.Circle(V(914.4, 508, 0), V(0, 0, 1), 6.35), math.radians(90), math.radians(270)), False)
sketch7.addConstraint(Sketcher.Constraint("Tangent", 0, 2, 1, 1))
sketch7.addConstraint(Sketcher.Constraint("Tangent", 1, 2, 2, 1))
sketch7.addConstraint(Sketcher.Constraint("Tangent", 2, 2, 0, 1))
sketch7.addConstraint(Sketcher.Constraint("Horizontal", 2, 3, 0, 2))
sketch7.addConstraint(Sketcher.Constraint("Vertical", 2, 3, 1, 2))
sketch7.addConstraint(Sketcher.Constraint("Vertical", 1, 2, 2, 2))
sketch7.addConstraint(Sketcher.Constraint("Radius", 0, Q("0.25 in")))
sketch7.addConstraint(Sketcher.Constraint("DistanceX", -1, 1, 0, 3, Q("36 in")))
sketch7.addConstraint(Sketcher.Constraint("DistanceY", -1, 1, 0, 3, Q("20 in")))
pad7 = body7.newObject("PartDesign::Pad", "Pad006")
pad7.Profile = sketch7
pad7.Length = Q("1 in")
body8 = doc.addObject("PartDesign::Body", "Body007")
doc.recompute()

mirroring = doc.addObject("Part::Mirroring", "Mirroring")
mirroring.Source = body4
mirroring.Base = V(0, 0, 0)
mirroring.Normal = V(1, 0, 0)
body8.BaseFeature = mirroring
doc.recompute()
body9 = doc.addObject("PartDesign::Body", "Body008")
doc.recompute()

mirroring2 = doc.addObject("Part::Mirroring", "Mirroring001")
mirroring2.Source = body5
mirroring2.Base = V(0, 0, 0)
mirroring2.Normal = V(1, 0, 0)
body9.BaseFeature = mirroring2
doc.recompute()
body10 = doc.addObject("PartDesign::Body", "Body009")
doc.recompute()

mirroring3 = doc.addObject("Part::Mirroring", "Mirroring002")
mirroring3.Source = body6
mirroring3.Base = V(0, 0, 0)
mirroring3.Normal = V(1, 0, 0)
body10.BaseFeature = mirroring3
doc.recompute()
body11 = doc.addObject("PartDesign::Body", "Body010")
doc.recompute()

mirroring4 = doc.addObject("Part::Mirroring", "Mirroring003")
mirroring4.Source = body7
mirroring4.Base = V(0, 0, 0)
mirroring4.Normal = V(1, 0, 0)
body11.BaseFeature = mirroring4
doc.recompute()
body12 = doc.addObject("PartDesign::Body", "Body011")

sketch8 = body12.newObject("Sketcher::SketchObject", "Sketch007")
sketch8.AttachmentSupport = (doc.getObject("XZ_Plane011"), [""])
sketch8.MapMode = "FlatFace"
sketch8.AttachmentOffset = App.Placement(V(0, 0, 10 * 25.4), App.Rotation())
sketch8.addGeometry(Part.Circle(V(0, 180.990207, 0), V(0, 0, 1), 6.35), False)
sketch8.addConstraint(Sketcher.Constraint("PointOnObject", 0, 3, -2))
sketch8.addConstraint(Sketcher.Constraint("Diameter", 0, Q("0.5 in")))
sketch8.addConstraint(Sketcher.Constraint("DistanceY", -1, 1, 0, 3, Q("180.990207 mm")))
pad8 = body12.newObject("PartDesign::Pad", "Pad007")
pad8.Profile = sketch8
pad8.Length = Q("1 in")
body13 = doc.addObject("PartDesign::Body", "Body012")

sketch9 = body13.newObject("Sketcher::SketchObject", "Sketch008")
sketch9.AttachmentSupport = (doc.getObject("XZ_Plane012"), [""])
sketch9.MapMode = "FlatFace"
sketch9.AttachmentOffset = App.Placement(V(0, 0, 10 * 25.4), App.Rotation())
add_polygon(sketch9, [(-1270, 0), (-1270, -143.161923), (1270, -143.161923), (1270, 0)])
sketch9.addConstraint(Sketcher.Constraint("Vertical", 0))
sketch9.addConstraint(Sketcher.Constraint("Horizontal", 1))
sketch9.addConstraint(Sketcher.Constraint("Vertical", 2))
sketch9.addConstraint(Sketcher.Constraint("Horizontal", 3))
sketch9.addConstraint(Sketcher.Constraint("Symmetric", 2, 2, 3, 2, -1, 1))
sketch9.addConstraint(Sketcher.Constraint("DistanceX", 1, 1, 1, 2, Q("100 in")))
sketch9.addConstraint(Sketcher.Constraint("DistanceY", 0, 2, 0, 1, Q("143.161923 mm")))
pad9 = body13.newObject("PartDesign::Pad", "Pad008")
pad9.Profile = sketch9
pad9.Length = Q("10 in")
pad9.Reversed = True
mirroring.Visibility = False
mirroring2.Visibility = False
mirroring3.Visibility = False
mirroring4.Visibility = False

doc.recompute()
